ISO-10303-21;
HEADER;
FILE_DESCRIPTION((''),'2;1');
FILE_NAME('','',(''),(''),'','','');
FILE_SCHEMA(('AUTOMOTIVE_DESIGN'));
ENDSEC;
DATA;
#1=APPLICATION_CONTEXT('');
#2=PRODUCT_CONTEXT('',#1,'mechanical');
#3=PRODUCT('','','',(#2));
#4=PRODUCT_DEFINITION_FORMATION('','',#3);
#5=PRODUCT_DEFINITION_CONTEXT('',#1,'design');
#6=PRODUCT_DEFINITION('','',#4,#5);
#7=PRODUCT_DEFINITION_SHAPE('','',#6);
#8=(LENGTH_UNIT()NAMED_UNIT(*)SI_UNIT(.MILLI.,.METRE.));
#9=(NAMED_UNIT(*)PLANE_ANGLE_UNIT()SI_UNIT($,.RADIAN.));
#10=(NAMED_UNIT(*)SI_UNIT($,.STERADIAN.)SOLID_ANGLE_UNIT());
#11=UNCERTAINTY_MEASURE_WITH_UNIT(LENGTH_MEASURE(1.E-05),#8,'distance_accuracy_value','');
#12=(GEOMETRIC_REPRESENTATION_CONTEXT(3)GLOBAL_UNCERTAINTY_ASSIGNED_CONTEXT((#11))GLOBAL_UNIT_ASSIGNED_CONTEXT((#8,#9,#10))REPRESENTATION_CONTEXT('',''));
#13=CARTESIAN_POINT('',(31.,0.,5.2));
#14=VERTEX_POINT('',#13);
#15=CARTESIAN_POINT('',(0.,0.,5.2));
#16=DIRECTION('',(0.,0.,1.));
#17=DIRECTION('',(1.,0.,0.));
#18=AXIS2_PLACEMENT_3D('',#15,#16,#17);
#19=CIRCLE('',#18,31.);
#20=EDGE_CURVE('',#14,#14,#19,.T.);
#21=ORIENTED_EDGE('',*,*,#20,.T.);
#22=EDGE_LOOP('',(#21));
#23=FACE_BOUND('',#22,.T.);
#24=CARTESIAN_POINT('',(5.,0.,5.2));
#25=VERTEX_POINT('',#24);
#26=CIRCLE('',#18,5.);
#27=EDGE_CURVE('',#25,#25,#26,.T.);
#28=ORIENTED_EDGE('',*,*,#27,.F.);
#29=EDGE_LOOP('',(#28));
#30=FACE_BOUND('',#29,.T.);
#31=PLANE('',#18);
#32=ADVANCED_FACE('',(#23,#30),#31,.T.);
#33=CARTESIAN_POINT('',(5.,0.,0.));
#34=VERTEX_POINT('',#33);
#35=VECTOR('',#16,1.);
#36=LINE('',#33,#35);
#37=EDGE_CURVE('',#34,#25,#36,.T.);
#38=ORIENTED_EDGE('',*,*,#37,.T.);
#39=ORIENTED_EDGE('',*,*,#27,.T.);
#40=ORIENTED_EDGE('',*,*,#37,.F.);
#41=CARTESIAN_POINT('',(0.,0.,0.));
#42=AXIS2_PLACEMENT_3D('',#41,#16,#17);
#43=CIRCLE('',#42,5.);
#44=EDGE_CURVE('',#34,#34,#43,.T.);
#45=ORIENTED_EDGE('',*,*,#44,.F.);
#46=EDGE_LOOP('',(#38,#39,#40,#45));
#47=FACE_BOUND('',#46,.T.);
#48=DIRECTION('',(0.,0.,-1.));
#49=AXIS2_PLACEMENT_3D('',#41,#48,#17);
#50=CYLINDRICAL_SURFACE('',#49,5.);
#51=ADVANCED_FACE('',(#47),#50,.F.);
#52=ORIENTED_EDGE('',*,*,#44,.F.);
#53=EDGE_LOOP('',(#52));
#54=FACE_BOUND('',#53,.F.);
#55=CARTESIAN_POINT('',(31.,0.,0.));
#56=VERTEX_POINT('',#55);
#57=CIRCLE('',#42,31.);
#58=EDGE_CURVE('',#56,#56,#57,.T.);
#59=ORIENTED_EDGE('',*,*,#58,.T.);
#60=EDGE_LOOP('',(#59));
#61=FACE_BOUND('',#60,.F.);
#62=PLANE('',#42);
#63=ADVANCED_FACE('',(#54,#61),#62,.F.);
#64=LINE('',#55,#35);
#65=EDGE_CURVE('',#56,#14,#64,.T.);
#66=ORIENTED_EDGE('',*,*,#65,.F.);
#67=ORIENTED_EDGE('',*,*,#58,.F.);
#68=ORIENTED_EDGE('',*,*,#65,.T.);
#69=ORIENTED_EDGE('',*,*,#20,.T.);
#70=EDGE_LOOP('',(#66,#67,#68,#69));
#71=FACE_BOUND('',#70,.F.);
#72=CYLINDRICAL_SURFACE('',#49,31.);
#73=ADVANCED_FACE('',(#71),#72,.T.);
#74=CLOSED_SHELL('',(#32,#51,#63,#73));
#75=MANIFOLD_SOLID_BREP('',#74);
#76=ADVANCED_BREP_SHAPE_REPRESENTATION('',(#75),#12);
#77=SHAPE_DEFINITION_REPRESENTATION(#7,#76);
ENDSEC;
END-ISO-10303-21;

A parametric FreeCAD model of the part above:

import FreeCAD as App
import Part
import Sketcher

V = App.Vector

doc = App.newDocument("Part")
body = doc.addObject("PartDesign::Body", "Body")

# Sketch on XY plane
sketch1 = body.newObject("Sketcher::SketchObject", "Sketch")
sketch1.AttachmentSupport = (doc.getObject("XY_Plane"), [""])
sketch1.MapMode = "FlatFace"
sketch1.addGeometry(Part.Circle(V(0, 0, 0), V(0, 0, 1), 31), False)
sketch1.addGeometry(Part.Circle(V(0, 0, 0), V(0, 0, 1), 5), False)
sketch1.addConstraint(Sketcher.Constraint("Coincident", 0, 3, -1, 1))
sketch1.addConstraint(Sketcher.Constraint("Coincident", 1, 3, -1, 1))
sketch1.addConstraint(Sketcher.Constraint("Diameter", 0, 62.0))
sketch1.addConstraint(Sketcher.Constraint("Diameter", 1, 10.0))
pad1 = body.newObject("PartDesign::Pad", "Pad")
pad1.Profile = sketch1
pad1.Length = 5.2

doc.recompute()
